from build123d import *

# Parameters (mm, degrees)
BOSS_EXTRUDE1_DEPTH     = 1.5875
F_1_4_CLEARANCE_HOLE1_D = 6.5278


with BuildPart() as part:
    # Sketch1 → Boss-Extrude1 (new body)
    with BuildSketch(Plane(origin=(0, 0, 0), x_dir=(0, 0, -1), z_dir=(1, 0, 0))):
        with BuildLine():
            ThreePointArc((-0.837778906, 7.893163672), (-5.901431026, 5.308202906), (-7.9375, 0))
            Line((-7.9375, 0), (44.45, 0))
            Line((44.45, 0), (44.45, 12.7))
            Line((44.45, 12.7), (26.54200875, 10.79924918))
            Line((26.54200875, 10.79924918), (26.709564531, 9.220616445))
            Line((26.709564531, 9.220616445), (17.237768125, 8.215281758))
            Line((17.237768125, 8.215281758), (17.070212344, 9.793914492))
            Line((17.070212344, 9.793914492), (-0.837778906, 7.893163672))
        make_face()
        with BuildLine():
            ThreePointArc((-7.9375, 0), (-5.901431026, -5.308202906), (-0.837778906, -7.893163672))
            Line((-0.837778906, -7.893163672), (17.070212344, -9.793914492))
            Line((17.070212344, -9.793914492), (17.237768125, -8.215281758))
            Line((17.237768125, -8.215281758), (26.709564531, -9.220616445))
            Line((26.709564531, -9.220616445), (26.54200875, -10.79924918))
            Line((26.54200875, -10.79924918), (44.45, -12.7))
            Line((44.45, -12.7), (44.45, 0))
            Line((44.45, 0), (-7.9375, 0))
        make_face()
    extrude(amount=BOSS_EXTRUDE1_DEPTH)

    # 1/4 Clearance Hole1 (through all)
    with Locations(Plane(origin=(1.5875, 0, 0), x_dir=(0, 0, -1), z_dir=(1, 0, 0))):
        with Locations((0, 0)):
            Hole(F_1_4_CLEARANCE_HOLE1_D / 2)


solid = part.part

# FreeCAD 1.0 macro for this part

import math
import FreeCAD as App
import Part
import Sketcher
from FreeCAD import Vector
Q = App.Units.Quantity

doc = App.newDocument("Part")
params = doc.addObject("Spreadsheet::Sheet", "Params")
for row, (alias, value) in enumerate([
    ("sketch1_width", "1 in"),
    ("sketch1_radius", "0.3125 in"),
    ("sketch1_length", "0.0625 in"),
    ("sketch1_length2", "0.375 in"),
    ("pad1_length", "0.0625 in"),
    ("sketch2_diameter", "0.257 in"),
    ("hole_diameter", "0.257 in"),
], start=1):
    params.set(f"A{row}", alias)
    params.set(f"B{row}", "=" + value)
    params.setAlias(f"B{row}", alias)

body = doc.addObject("PartDesign::Body", "Body")

sketch1 = doc.addObject("Sketcher::SketchObject", "Sketch")
body.addObject(sketch1)
sketch1.AttachmentSupport = (doc.YZ_Plane, [""])
sketch1.MapMode = "FlatFace"
sketch1.addGeometry(Part.ArcOfCircle(Part.Circle(Vector(0, 0, 0), Vector(0, 0, 1), 7.9), math.radians(6), math.radians(90)), False)
sketch1.addGeometry(Part.ArcOfCircle(Part.Circle(Vector(0, 0, 0), Vector(0, 0, 1), 7.9), math.radians(90), math.radians(174)), False)
sketch1.addGeometry(Part.LineSegment(Vector(-7.9, 0.8, 0), Vector(-9.8, -17.1, 0)), False)
sketch1.addGeometry(Part.LineSegment(Vector(-9.8, -17.1, 0), Vector(-8.2, -17.2, 0)), False)
sketch1.addGeometry(Part.LineSegment(Vector(-8.2, -17.2, 0), Vector(-9.2, -26.7, 0)), False)
sketch1.addGeometry(Part.LineSegment(Vector(-9.2, -26.7, 0), Vector(-10.8, -26.5, 0)), False)
sketch1.addGeometry(Part.LineSegment(Vector(-10.8, -26.5, 0), Vector(-12.7, -44.5, 0)), False)
sketch1.addGeometry(Part.LineSegment(Vector(-12.7, -44.5, 0), Vector(12.7, -44.5, 0)), False)
sketch1.addGeometry(Part.LineSegment(Vector(12.7, -44.5, 0), Vector(10.8, -26.5, 0)), False)
sketch1.addGeometry(Part.LineSegment(Vector(10.8, -26.5, 0), Vector(9.2, -26.7, 0)), False)
sketch1.addGeometry(Part.LineSegment(Vector(9.2, -26.7, 0), Vector(8.2, -17.2, 0)), False)
sketch1.addGeometry(Part.LineSegment(Vector(8.2, -17.2, 0), Vector(9.8, -17.1, 0)), False)
sketch1.addGeometry(Part.LineSegment(Vector(9.8, -17.1, 0), Vector(7.9, 0.8, 0)), False)
sketch1.addConstraint(Sketcher.Constraint("Tangent", 0, 2, 1, 1))
sketch1.addConstraint(Sketcher.Constraint("Tangent", 1, 2, 2, 1))
sketch1.addConstraint(Sketcher.Constraint("Coincident", 2, 2, 3, 1))
sketch1.addConstraint(Sketcher.Constraint("Coincident", 3, 2, 4, 1))
sketch1.addConstraint(Sketcher.Constraint("Coincident", 4, 2, 5, 1))
sketch1.addConstraint(Sketcher.Constraint("Coincident", 5, 2, 6, 1))
sketch1.addConstraint(Sketcher.Constraint("Coincident", 6, 2, 7, 1))
sketch1.addConstraint(Sketcher.Constraint("Coincident", 7, 2, 8, 1))
sketch1.addConstraint(Sketcher.Constraint("Coincident", 8, 2, 9, 1))
sketch1.addConstraint(Sketcher.Constraint("Coincident", 9, 2, 10, 1))
sketch1.addConstraint(Sketcher.Constraint("Coincident", 10, 2, 11, 1))
sketch1.addConstraint(Sketcher.Constraint("Coincident", 11, 2, 12, 1))
sketch1.addConstraint(Sketcher.Constraint("Tangent", 12, 2, 0, 1))
sketch1.addConstraint(Sketcher.Constraint("Horizontal", 7))
sketch1.addConstraint(Sketcher.Constraint("Coincident", 0, 3, -1, 1))
sketch1.addConstraint(Sketcher.Constraint("Equal", 0, 1))
sketch1.addConstraint(Sketcher.Constraint("Symmetric", 5, 2, 8, 2, -2))
sketch1.addConstraint(Sketcher.Constraint("Symmetric", 4, 2, 9, 2, -2))
sketch1.addConstraint(Sketcher.Constraint("Symmetric", 3, 2, 10, 2, -2))
sketch1.addConstraint(Sketcher.Constraint("Symmetric", 2, 2, 11, 2, -2))
sketch1.addConstraint(Sketcher.Constraint("PointOnObject", 0, 2, -2))
sketch1.addConstraint(Sketcher.Constraint("Perpendicular", 2, 3))
sketch1.addConstraint(Sketcher.Constraint("Perpendicular", 3, 4))
sketch1.addConstraint(Sketcher.Constraint("Perpendicular", 4, 5))
sketch1.addConstraint(Sketcher.Constraint("Perpendicular", 5, 6))
sketch1.addConstraint(Sketcher.Constraint("Perpendicular", 8, 9))
sketch1.addConstraint(Sketcher.Constraint("Equal", 3, 5))
sketch1.addConstraint(Sketcher.Constraint("Equal", 2, 6))
sketch1.addConstraint(Sketcher.Constraint("DistanceX", 7, 1, 7, 2, Q("1 in")))
sketch1.addConstraint(Sketcher.Constraint("Radius", 0, Q("0.3125 in")))
sketch1.addConstraint(Sketcher.Constraint("DistanceY", 6, 2, -1, 1, Q("1.75 in")))
sketch1.addConstraint(Sketcher.Constraint("Distance", 3, Q("0.0625 in")))
sketch1.addConstraint(Sketcher.Constraint("Distance", 4, Q("0.375 in")))
sketch1.setExpression("Constraints[28]", "Params.sketch1_width")
sketch1.setExpression("Constraints[29]", "Params.sketch1_radius")
sketch1.setExpression("Constraints[31]", "Params.sketch1_length")
sketch1.setExpression("Constraints[32]", "Params.sketch1_length2")
pad1 = doc.addObject("PartDesign::Pad", "Pad")
body.addObject(pad1)
pad1.Profile = sketch1
pad1.setExpression("Length", "Params.pad1_length")

sketch2 = doc.addObject("Sketcher::SketchObject", "Sketch001")
body.addObject(sketch2)
sketch2.AttachmentSupport = (doc.YZ_Plane, [""])
sketch2.MapMode = "FlatFace"
sketch2.AttachmentOffset = App.Placement(Vector(0, 0, 0.0625 * 25.4), App.Rotation())
sketch2.addGeometry(Part.Circle(Vector(0, 0, 0), Vector(0, 0, 1), 3.3), False)
sketch2.addConstraint(Sketcher.Constraint("Coincident", 0, 3, -1, 1))
sketch2.addConstraint(Sketcher.Constraint("Diameter", 0, Q("0.257 in")))
sketch2.setExpression("Constraints[1]", "Params.sketch2_diameter")
doc.recompute()
hole = doc.addObject("PartDesign::Hole", "Hole")
body.addObject(hole)
hole.Profile = sketch2
hole.ThreadType = "None"
hole.setExpression("Diameter", "Params.hole_diameter")
hole.DepthType = "ThroughAll"

doc.recompute()
